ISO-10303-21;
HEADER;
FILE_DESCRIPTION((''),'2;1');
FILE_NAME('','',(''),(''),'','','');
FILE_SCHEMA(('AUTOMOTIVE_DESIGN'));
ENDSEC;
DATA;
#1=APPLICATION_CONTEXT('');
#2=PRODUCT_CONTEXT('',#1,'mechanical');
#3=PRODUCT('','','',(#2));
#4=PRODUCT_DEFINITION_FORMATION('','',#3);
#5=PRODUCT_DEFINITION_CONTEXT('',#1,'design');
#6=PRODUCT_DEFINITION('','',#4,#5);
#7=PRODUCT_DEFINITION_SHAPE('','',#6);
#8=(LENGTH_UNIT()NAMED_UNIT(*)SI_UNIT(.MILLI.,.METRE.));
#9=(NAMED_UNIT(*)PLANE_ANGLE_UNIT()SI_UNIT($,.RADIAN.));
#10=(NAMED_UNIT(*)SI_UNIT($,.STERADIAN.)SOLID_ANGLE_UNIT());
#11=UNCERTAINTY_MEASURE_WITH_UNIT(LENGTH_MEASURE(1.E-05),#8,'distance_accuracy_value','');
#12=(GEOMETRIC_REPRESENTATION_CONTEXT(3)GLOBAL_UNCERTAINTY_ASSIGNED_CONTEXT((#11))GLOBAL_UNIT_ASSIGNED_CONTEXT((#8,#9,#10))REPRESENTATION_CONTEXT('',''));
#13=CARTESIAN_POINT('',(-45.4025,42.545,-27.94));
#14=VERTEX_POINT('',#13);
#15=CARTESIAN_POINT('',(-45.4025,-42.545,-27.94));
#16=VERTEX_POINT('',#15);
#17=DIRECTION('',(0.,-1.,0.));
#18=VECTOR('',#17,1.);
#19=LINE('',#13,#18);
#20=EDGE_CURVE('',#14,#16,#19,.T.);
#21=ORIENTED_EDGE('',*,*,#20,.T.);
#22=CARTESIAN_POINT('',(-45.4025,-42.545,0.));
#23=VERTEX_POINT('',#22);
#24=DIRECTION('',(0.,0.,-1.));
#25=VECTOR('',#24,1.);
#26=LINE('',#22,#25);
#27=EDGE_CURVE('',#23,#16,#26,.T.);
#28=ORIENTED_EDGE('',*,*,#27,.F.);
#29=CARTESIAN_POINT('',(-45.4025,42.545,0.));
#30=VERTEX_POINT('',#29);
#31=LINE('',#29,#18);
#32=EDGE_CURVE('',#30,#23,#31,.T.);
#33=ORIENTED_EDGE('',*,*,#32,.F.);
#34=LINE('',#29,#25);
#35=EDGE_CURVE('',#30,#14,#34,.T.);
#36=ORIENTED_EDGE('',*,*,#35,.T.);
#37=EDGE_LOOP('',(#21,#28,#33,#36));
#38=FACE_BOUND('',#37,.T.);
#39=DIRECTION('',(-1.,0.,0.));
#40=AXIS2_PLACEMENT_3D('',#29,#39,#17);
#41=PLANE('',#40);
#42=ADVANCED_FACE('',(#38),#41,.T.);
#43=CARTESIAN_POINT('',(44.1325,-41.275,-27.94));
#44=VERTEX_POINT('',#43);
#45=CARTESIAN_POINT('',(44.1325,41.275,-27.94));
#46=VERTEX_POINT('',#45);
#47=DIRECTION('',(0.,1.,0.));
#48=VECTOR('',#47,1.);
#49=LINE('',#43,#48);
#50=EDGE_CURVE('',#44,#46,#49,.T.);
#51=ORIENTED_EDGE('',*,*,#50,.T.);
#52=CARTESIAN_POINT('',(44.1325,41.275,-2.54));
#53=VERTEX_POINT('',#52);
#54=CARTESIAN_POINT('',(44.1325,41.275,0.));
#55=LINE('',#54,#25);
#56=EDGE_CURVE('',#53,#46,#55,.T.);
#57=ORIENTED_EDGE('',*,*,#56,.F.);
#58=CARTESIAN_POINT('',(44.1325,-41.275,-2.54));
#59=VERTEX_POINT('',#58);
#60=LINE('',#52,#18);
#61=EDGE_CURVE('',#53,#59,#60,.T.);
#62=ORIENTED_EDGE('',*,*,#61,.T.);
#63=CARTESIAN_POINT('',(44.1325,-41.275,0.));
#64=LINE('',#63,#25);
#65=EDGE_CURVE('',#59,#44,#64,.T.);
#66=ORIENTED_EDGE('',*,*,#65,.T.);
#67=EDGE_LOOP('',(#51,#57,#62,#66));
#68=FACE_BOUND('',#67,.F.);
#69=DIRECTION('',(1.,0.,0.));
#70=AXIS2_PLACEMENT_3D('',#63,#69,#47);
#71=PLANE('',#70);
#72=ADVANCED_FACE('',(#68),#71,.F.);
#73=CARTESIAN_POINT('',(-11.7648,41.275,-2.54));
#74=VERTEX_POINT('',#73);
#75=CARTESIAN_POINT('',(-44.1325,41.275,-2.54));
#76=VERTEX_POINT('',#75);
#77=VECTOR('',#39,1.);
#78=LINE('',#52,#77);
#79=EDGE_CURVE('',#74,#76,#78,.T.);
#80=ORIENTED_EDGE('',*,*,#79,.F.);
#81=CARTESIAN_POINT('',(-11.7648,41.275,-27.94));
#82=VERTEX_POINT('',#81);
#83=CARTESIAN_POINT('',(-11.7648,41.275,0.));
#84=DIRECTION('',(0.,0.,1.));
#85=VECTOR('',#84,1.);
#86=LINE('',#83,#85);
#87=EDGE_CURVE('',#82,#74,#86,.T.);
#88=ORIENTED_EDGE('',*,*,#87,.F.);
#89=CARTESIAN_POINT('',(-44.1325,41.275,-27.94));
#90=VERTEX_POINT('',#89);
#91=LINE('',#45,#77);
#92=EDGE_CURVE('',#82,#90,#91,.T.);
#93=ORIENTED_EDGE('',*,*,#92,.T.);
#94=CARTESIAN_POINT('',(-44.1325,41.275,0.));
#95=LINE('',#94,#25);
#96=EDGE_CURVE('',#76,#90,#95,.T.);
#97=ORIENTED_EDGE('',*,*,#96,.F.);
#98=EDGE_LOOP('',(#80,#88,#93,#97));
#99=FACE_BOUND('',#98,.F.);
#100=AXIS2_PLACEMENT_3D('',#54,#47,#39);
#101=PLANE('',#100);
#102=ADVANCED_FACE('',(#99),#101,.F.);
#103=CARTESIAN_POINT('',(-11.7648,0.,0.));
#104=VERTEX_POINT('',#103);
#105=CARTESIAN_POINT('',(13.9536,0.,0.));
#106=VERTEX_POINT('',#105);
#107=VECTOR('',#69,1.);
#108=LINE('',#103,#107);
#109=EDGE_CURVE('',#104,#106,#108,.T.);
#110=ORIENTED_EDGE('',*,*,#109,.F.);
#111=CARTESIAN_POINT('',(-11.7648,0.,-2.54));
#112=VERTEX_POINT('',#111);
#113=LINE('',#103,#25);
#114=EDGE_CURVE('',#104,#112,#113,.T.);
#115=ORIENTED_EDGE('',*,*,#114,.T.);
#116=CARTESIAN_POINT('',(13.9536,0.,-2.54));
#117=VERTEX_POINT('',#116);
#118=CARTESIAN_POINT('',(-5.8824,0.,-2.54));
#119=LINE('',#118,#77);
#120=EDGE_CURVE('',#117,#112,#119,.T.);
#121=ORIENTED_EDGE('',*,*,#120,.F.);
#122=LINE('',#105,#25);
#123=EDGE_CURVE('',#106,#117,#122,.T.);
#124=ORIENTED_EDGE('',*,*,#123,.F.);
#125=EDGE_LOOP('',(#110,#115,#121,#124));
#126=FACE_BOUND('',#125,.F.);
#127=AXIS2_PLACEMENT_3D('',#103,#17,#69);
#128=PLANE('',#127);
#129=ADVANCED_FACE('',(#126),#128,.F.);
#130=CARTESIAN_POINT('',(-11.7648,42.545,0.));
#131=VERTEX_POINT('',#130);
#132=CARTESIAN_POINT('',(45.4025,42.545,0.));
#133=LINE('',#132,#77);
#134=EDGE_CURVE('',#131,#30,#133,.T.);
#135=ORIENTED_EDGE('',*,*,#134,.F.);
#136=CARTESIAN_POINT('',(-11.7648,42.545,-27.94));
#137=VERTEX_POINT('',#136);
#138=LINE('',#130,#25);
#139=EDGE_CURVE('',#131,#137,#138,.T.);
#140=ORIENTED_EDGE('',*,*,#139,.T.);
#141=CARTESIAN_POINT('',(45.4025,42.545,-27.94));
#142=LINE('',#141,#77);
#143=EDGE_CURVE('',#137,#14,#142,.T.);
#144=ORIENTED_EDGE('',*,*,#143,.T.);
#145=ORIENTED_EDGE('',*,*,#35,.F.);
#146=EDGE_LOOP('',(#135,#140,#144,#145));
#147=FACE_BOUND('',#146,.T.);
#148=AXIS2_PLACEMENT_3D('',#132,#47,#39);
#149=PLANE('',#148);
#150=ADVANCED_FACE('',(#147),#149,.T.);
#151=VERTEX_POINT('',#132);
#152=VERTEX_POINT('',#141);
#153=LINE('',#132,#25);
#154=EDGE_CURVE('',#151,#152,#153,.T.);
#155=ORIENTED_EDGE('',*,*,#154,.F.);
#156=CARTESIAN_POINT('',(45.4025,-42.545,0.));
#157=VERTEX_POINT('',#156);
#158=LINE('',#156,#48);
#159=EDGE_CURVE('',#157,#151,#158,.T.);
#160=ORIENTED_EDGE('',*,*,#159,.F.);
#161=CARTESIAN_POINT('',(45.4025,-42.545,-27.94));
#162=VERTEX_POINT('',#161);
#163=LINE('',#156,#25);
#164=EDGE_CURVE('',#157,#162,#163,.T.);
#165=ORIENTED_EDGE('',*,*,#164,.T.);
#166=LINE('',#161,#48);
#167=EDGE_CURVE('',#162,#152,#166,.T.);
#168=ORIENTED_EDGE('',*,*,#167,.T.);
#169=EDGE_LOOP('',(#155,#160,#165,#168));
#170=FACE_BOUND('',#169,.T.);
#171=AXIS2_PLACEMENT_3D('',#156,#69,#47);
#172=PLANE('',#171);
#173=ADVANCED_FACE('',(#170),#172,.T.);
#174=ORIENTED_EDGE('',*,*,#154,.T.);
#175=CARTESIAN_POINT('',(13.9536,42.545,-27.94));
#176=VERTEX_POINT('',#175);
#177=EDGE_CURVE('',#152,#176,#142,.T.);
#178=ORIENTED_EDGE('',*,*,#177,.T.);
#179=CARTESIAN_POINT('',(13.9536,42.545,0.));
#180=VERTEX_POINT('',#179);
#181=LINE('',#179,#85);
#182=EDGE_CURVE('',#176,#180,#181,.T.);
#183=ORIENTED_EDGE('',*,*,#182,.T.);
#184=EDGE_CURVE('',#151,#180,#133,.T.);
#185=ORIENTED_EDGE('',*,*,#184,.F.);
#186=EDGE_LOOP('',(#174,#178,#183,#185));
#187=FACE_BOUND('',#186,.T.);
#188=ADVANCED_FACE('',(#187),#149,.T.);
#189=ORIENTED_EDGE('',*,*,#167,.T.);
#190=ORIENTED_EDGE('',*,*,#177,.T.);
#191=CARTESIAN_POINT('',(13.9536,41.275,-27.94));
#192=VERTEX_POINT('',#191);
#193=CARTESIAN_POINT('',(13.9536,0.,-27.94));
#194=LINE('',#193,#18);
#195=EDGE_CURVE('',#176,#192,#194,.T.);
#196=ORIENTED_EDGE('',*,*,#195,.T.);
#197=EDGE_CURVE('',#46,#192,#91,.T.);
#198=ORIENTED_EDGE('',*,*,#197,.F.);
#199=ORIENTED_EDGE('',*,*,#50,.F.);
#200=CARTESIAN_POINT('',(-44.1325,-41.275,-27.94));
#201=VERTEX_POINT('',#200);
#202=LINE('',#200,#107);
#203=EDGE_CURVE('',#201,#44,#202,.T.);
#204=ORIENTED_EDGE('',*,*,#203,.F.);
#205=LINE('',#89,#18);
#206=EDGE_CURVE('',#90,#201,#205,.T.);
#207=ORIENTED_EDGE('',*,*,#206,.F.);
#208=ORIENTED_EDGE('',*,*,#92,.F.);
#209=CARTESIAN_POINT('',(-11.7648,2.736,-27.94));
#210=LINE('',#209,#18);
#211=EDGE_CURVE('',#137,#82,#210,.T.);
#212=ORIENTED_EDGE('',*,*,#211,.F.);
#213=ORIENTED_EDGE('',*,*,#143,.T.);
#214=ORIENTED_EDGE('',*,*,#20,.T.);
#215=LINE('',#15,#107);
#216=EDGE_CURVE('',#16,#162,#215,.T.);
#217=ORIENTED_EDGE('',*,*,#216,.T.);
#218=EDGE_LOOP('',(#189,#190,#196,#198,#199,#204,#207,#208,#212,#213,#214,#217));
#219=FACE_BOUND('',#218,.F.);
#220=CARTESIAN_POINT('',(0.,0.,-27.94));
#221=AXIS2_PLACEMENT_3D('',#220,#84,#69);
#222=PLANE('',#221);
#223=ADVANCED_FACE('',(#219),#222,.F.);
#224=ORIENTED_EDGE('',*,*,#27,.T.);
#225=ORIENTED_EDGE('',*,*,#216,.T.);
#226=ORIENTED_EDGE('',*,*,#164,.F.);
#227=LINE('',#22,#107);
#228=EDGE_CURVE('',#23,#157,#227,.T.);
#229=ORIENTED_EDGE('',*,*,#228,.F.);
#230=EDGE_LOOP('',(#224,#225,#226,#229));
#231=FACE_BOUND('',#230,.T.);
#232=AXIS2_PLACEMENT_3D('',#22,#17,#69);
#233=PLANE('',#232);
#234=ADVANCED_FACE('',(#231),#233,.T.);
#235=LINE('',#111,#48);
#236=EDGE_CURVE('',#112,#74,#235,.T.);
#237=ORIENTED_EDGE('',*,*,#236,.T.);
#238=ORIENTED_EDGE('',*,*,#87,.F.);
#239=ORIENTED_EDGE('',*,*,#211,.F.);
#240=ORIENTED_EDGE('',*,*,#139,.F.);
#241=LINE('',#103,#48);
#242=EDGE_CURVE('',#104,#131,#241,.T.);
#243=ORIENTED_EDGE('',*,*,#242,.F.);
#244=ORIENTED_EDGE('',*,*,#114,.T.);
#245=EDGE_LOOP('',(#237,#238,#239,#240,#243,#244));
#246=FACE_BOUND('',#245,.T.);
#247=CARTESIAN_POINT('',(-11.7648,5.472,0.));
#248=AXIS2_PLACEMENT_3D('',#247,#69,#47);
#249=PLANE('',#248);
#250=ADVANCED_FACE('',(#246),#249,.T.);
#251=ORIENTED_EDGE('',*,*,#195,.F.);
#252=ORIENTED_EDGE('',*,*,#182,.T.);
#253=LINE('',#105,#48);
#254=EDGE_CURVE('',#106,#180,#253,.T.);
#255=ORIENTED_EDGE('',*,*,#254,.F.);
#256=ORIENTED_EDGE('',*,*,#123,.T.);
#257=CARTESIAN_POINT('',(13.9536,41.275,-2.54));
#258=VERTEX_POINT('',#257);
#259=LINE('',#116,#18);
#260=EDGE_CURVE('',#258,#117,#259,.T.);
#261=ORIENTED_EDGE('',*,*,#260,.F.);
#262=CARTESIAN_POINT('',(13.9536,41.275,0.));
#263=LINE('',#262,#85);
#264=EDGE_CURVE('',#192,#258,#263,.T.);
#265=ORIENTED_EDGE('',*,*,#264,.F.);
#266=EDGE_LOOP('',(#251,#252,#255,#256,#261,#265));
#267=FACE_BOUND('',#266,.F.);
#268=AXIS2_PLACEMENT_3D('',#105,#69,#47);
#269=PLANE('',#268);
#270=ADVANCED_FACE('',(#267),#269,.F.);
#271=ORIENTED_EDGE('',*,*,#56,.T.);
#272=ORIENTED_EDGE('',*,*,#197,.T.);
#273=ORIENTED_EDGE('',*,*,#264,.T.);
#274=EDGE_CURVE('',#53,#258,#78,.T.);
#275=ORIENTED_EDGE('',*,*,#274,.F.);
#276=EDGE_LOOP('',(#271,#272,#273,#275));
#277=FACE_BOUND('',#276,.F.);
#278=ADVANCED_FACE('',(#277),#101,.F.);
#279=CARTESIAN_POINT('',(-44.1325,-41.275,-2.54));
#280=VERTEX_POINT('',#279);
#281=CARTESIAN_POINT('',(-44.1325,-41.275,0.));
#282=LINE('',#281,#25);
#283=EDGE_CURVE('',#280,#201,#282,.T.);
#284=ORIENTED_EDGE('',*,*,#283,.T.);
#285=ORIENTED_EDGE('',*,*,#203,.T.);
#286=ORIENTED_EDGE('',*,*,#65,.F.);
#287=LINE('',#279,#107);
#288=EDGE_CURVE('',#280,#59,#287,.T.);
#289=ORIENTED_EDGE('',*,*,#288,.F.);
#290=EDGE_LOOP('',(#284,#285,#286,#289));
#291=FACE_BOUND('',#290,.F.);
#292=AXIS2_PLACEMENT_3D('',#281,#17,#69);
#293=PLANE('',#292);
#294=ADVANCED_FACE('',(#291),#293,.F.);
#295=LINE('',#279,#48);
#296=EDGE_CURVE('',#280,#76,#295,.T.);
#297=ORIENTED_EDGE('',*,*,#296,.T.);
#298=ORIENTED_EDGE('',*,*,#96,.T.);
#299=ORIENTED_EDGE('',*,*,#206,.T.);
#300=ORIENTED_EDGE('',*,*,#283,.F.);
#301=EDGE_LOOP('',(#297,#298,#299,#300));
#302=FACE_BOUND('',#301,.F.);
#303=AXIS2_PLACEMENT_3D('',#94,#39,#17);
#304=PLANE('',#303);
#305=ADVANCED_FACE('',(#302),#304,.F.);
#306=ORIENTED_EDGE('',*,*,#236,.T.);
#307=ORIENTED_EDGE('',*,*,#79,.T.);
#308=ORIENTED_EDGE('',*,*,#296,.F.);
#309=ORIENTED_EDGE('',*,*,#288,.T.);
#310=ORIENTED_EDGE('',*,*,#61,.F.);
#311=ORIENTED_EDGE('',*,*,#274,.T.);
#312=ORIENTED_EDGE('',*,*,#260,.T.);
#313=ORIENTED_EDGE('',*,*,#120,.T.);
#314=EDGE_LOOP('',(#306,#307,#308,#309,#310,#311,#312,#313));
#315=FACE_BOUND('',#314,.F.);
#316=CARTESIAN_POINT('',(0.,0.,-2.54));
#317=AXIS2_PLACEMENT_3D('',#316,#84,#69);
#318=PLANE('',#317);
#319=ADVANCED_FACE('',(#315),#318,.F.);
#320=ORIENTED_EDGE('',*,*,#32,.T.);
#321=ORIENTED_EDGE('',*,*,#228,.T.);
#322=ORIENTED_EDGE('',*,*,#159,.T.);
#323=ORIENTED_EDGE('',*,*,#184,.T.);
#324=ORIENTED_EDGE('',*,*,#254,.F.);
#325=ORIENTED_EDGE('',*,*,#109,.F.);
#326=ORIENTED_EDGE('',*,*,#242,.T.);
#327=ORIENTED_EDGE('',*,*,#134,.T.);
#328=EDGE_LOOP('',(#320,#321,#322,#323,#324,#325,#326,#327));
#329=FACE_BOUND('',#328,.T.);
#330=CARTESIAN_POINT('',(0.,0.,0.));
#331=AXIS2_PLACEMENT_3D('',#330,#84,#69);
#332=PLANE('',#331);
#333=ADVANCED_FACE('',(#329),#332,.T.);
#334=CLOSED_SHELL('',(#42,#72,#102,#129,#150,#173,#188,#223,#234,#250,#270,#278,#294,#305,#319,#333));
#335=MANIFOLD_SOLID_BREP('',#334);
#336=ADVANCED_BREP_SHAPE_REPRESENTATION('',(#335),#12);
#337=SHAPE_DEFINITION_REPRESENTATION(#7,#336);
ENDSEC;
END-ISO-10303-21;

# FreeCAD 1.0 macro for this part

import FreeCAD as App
import Part
import Sketcher
from FreeCAD import Vector
Q = App.Units.Quantity


def add_polygon(sketch, points):
    """Adds a closed chain of lines whose ends are joined by coincident constraints."""
    first, n = sketch.GeometryCount, len(points)
    for a, b in zip(points, points[1:] + points[:1]):
        sketch.addGeometry(Part.LineSegment(App.Vector(*a, 0), App.Vector(*b, 0)), False)
    for i in range(n):
        sketch.addConstraint(Sketcher.Constraint("Coincident", first + i, 2, first + (i + 1) % n, 1))

doc = App.newDocument("Part")
body = doc.addObject("PartDesign::Body", "Body")

# Sketch on XY plane
sketch1 = body.newObject("Sketcher::SketchObject", "Sketch")
sketch1.AttachmentSupport = (doc.getObject("XY_Plane"), [""])
sketch1.MapMode = "FlatFace"
add_polygon(sketch1, [(-45, 43), (-45, -43), (45, -43), (45, 43)])  # lines 0-3
add_polygon(sketch1, [(44, -41), (-44, -41), (-44, 41), (44, 41)])  # lines 4-7
sketch1.addConstraint(Sketcher.Constraint("Vertical", 0))
sketch1.addConstraint(Sketcher.Constraint("Horizontal", 1))
sketch1.addConstraint(Sketcher.Constraint("Vertical", 2))
sketch1.addConstraint(Sketcher.Constraint("Horizontal", 3))
sketch1.addConstraint(Sketcher.Constraint("Horizontal", 4))
sketch1.addConstraint(Sketcher.Constraint("Vertical", 5))
sketch1.addConstraint(Sketcher.Constraint("Horizontal", 6))
sketch1.addConstraint(Sketcher.Constraint("Vertical", 7))
sketch1.addConstraint(Sketcher.Constraint("Symmetric", 0, 2, 2, 2, -1, 1))
sketch1.addConstraint(Sketcher.Constraint("Symmetric", 4, 2, 6, 2, -1, 1))
sketch1.addConstraint(Sketcher.Constraint("DistanceY", 0, 2, 0, 1, Q("3.35 in")))
sketch1.addConstraint(Sketcher.Constraint("DistanceY", 5, 1, 5, 2, Q("3.25 in")))
sketch1.addConstraint(Sketcher.Constraint("DistanceX", 1, 1, 1, 2, Q("3.575 in")))
sketch1.addConstraint(Sketcher.Constraint("DistanceX", 4, 2, 4, 1, Q("3.475 in")))
pad1 = body.newObject("PartDesign::Pad", "Pad")
pad1.Profile = sketch1
pad1.Length = Q("1.1 in")
pad1.Reversed = True

# Sketch on XY plane
sketch2 = body.newObject("Sketcher::SketchObject", "Sketch001")
sketch2.AttachmentSupport = (doc.getObject("XY_Plane"), [""])
sketch2.MapMode = "FlatFace"
add_polygon(sketch2, [(44, -41), (44, 41), (-44, 41), (-44, -41)])  # lines 0-3
sketch2.addConstraint(Sketcher.Constraint("Vertical", 0))
sketch2.addConstraint(Sketcher.Constraint("Horizontal", 1))
sketch2.addConstraint(Sketcher.Constraint("Vertical", 2))
sketch2.addConstraint(Sketcher.Constraint("Horizontal", 3))
sketch2.addConstraint(Sketcher.Constraint("Symmetric", 0, 2, 2, 2, -1, 1))
sketch2.addConstraint(Sketcher.Constraint("DistanceY", 0, 1, 0, 2, Q("3.25 in")))
sketch2.addConstraint(Sketcher.Constraint("DistanceX", 1, 2, 1, 1, Q("3.475 in")))
pad2 = body.newObject("PartDesign::Pad", "Pad001")
pad2.Profile = sketch2
pad2.Length = Q("0.1 in")
pad2.Reversed = True

# Sketch on XY plane
sketch3 = body.newObject("Sketcher::SketchObject", "Sketch002")
sketch3.AttachmentSupport = (doc.getObject("XY_Plane"), [""])
sketch3.MapMode = "FlatFace"
add_polygon(sketch3, [(5, 43), (-5, 43), (-5, 17), (5, 17)])  # lines 0-3
sketch3.addConstraint(Sketcher.Constraint("Horizontal", 0))
sketch3.addConstraint(Sketcher.Constraint("Vertical", 1))
sketch3.addConstraint(Sketcher.Constraint("Horizontal", 2))
sketch3.addConstraint(Sketcher.Constraint("Vertical", 3))
sketch3.addConstraint(Sketcher.Constraint("DistanceX", 0, 2, 0, 1, Q("0.3913 in")))
sketch3.addConstraint(Sketcher.Constraint("DistanceY", -1, 1, 0, 2, Q("1.675 in")))
sketch3.addConstraint(Sketcher.Constraint("DistanceY", 1, 2, 1, 1, 25.5355))
sketch3.addConstraint(Sketcher.Constraint("DistanceX", 0, 2, -1, 1, Q("0.2017 in")))
pocket1 = body.newObject("PartDesign::Pocket", "Pocket")
pocket1.Profile = sketch3
pocket1.Length = Q("1.1 in")

# Sketch on XY plane
sketch4 = body.newObject("Sketcher::SketchObject", "Sketch003")
sketch4.AttachmentSupport = (doc.getObject("XY_Plane"), [""])
sketch4.MapMode = "FlatFace"
add_polygon(sketch4, [(11, 43), (-12, 43), (-12, 5), (11, 5)])  # lines 0-3
sketch4.addConstraint(Sketcher.Constraint("Horizontal", 0))
sketch4.addConstraint(Sketcher.Constraint("Vertical", 1))
sketch4.addConstraint(Sketcher.Constraint("Horizontal", 2))
sketch4.addConstraint(Sketcher.Constraint("Vertical", 3))
sketch4.addConstraint(Sketcher.Constraint("DistanceX", 0, 2, 0, 1, Q("0.8779 in")))
sketch4.addConstraint(Sketcher.Constraint("DistanceY", -1, 1, 0, 2, Q("1.675 in")))
sketch4.addConstraint(Sketcher.Constraint("DistanceY", 1, 2, 1, 1, 37.073))
sketch4.addConstraint(Sketcher.Constraint("DistanceX", -1, 1, 2, 2, Q("0.4147 in")))
pocket2 = body.newObject("PartDesign::Pocket", "Pocket001")
pocket2.Profile = sketch4
pocket2.Length = Q("1.1 in")

# Sketch on XY plane
sketch5 = body.newObject("Sketcher::SketchObject", "Sketch004")
sketch5.AttachmentSupport = (doc.getObject("XY_Plane"), [""])
sketch5.MapMode = "FlatFace"
add_polygon(sketch5, [(14, 0), (14, 43), (-12, 43), (-12, 0)])  # lines 0-3
sketch5.addConstraint(Sketcher.Constraint("Vertical", 0))
sketch5.addConstraint(Sketcher.Constraint("Horizontal", 1))
sketch5.addConstraint(Sketcher.Constraint("Vertical", 2))
sketch5.addConstraint(Sketcher.Constraint("Horizontal", 3))
sketch5.addConstraint(Sketcher.Constraint("PointOnObject", 2, 2, -1))
sketch5.addConstraint(Sketcher.Constraint("DistanceX", 1, 2, 1, 1, 25.7184))
sketch5.addConstraint(Sketcher.Constraint("DistanceY", 0, 1, 0, 2, 42.6816))
sketch5.addConstraint(Sketcher.Constraint("DistanceX", -1, 1, 0, 2, 13.9536))
pocket3 = body.newObject("PartDesign::Pocket", "Pocket002")
pocket3.Profile = sketch5
pocket3.Length = Q("1.1 in")

doc.recompute()
